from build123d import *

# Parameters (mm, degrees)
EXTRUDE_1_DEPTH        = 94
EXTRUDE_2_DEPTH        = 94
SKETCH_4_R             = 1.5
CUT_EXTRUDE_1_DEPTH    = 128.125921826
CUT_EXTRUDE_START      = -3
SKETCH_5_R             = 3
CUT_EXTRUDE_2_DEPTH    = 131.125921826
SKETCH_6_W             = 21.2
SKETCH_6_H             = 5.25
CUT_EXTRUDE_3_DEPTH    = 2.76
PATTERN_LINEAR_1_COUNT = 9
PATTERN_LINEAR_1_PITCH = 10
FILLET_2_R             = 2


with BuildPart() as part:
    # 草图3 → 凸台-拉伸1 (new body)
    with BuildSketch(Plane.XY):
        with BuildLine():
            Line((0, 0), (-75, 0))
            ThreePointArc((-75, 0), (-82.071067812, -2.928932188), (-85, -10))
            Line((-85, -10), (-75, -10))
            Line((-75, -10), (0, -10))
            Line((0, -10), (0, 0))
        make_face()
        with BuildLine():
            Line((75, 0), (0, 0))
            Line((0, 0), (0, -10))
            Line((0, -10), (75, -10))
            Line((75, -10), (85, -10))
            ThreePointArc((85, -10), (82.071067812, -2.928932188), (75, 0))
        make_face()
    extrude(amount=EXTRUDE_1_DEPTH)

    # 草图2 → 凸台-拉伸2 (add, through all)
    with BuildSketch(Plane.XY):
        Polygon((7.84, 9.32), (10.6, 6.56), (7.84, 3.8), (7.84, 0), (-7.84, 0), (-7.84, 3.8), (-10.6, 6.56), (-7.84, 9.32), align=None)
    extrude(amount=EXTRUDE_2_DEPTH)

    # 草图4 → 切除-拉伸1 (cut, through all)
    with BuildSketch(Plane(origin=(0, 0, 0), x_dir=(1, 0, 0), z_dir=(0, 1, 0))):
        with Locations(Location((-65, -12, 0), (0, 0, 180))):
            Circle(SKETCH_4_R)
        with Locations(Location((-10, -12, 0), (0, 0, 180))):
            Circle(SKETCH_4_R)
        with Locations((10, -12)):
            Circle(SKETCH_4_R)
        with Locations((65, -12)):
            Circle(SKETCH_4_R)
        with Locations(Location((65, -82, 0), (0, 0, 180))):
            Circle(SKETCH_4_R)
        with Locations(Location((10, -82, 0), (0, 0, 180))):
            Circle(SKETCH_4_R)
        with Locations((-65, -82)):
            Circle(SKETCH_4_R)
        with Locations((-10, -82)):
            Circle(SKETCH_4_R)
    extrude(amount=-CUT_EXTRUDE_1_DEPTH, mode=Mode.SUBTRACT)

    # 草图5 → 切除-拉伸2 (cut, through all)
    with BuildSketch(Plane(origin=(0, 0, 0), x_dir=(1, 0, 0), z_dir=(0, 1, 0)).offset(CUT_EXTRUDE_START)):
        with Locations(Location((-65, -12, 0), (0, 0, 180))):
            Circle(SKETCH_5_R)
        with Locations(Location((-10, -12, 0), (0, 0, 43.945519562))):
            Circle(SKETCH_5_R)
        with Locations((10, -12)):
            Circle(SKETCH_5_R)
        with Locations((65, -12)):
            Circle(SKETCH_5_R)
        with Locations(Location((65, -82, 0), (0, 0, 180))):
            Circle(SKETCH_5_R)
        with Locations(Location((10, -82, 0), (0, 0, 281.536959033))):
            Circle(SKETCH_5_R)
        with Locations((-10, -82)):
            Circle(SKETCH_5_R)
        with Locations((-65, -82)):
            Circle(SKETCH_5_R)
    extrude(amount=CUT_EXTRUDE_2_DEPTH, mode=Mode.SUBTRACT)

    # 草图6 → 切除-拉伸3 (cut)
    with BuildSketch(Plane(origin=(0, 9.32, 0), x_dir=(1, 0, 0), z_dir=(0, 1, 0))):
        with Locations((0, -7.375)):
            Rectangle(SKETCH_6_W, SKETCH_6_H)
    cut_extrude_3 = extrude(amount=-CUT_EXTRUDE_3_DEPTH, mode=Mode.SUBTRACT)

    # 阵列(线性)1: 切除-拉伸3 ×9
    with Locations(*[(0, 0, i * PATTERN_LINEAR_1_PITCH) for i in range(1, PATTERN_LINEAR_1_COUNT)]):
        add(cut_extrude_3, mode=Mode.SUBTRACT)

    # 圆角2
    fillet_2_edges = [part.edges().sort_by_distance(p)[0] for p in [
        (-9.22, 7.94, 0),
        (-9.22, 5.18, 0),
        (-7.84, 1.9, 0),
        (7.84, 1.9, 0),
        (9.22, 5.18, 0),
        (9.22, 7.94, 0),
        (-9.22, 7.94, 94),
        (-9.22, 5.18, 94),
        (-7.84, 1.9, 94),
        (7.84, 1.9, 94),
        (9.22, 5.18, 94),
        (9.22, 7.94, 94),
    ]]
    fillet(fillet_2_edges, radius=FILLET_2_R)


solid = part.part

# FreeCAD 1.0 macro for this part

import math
import FreeCAD as App
import Part
import Sketcher
from FreeCAD import Vector


def edges_at(feature, points):
    """Names of the edges that pass closest to the given points."""
    edges = feature.Shape.Edges
    near = lambda p: min(range(len(edges)), key=lambda i: edges[i].distToShape(Part.Vertex(*p))[0])
    return sorted({f"Edge{near(p) + 1}" for p in points})

doc = App.newDocument("Part")
body = doc.addObject("PartDesign::Body", "Body")

# Sketch on XY plane
sketch1 = body.newObject("Sketcher::SketchObject", "Sketch")
sketch1.AttachmentSupport = (doc.getObject("XY_Plane"), [""])
sketch1.MapMode = "FlatFace"
sketch1.addGeometry([
    Part.ArcOfCircle(Part.Circle(Vector(-75, -10, 0), Vector(0, 0, 1), 10), math.radians(90), math.radians(180)),
    Part.LineSegment(Vector(-85, -10, 0), Vector(85, -10, 0)),
    Part.ArcOfCircle(Part.Circle(Vector(75, -10, 0), Vector(0, 0, 1), 10), math.radians(0), math.radians(90)),
    Part.LineSegment(Vector(75, 0, 0), Vector(-75, 0, 0)),
], False)
sketch1.addConstraint([
    Sketcher.Constraint("Coincident", 0, 2, 1, 1),
    Sketcher.Constraint("Coincident", 1, 2, 2, 1),
    Sketcher.Constraint("Tangent", 2, 2, 3, 1),
    Sketcher.Constraint("Tangent", 3, 2, 0, 1),
    Sketcher.Constraint("Horizontal", 1),
    Sketcher.Constraint("Horizontal", 3),
    Sketcher.Constraint("Equal", 0, 2),
    Sketcher.Constraint("Symmetric", 2, 2, 3, 2, -1, 1),
    Sketcher.Constraint("Horizontal", 2, 3, 0, 2),
    Sketcher.Constraint("Radius", 0, 10.0),
    Sketcher.Constraint("DistanceX", 1, 1, 1, 2, 170.0),
])
pad1 = body.newObject("PartDesign::Pad", "Pad")
pad1.Profile = sketch1
pad1.Length = 94

# Sketch on XY plane
sketch2 = body.newObject("Sketcher::SketchObject", "Sketch001")
sketch2.AttachmentSupport = (doc.getObject("XY_Plane"), [""])
sketch2.MapMode = "FlatFace"
sketch2.addGeometry([
    Part.LineSegment(Vector(10.6, 6.6, 0), Vector(7.8, 9.3, 0)),  # 0
    Part.LineSegment(Vector(7.8, 9.3, 0), Vector(-7.8, 9.3, 0)),  # 1
    Part.LineSegment(Vector(-7.8, 9.3, 0), Vector(-10.6, 6.6, 0)),  # 2
    Part.LineSegment(Vector(-10.6, 6.6, 0), Vector(-7.8, 3.8, 0)),  # 3
    Part.LineSegment(Vector(-7.8, 3.8, 0), Vector(-7.8, 0, 0)),  # 4
    Part.LineSegment(Vector(-7.8, 0, 0), Vector(7.8, 0, 0)),  # 5
    Part.LineSegment(Vector(7.8, 0, 0), Vector(7.8, 3.8, 0)),  # 6
    Part.LineSegment(Vector(7.8, 3.8, 0), Vector(10.6, 6.6, 0)),  # 7
], False)
sketch2.addConstraint([
    Sketcher.Constraint("Coincident", 0, 2, 1, 1),
    Sketcher.Constraint("Coincident", 1, 2, 2, 1),
    Sketcher.Constraint("Coincident", 2, 2, 3, 1),
    Sketcher.Constraint("Coincident", 3, 2, 4, 1),
    Sketcher.Constraint("Coincident", 4, 2, 5, 1),
    Sketcher.Constraint("Coincident", 5, 2, 6, 1),
    Sketcher.Constraint("Coincident", 6, 2, 7, 1),
    Sketcher.Constraint("Coincident", 7, 2, 0, 1),
    Sketcher.Constraint("Horizontal", 1),
    Sketcher.Constraint("Vertical", 4),
    Sketcher.Constraint("Horizontal", 5),
    Sketcher.Constraint("Vertical", 6),
    Sketcher.Constraint("Symmetric", 4, 2, 5, 2, -1, 1),
    Sketcher.Constraint("Symmetric", 2, 2, 7, 2, -2),
    Sketcher.Constraint("Perpendicular", 0, 2),
    Sketcher.Constraint("Perpendicular", 2, 3),
    Sketcher.Constraint("Perpendicular", 3, 7),
    Sketcher.Constraint("Horizontal", 3, 2, 6, 2),
    Sketcher.Constraint("Vertical", 1, 2, 3, 2),
    Sketcher.Constraint("DistanceY", 4, 2, 4, 1, 3.8),
    Sketcher.Constraint("DistanceX", 1, 2, 1, 1, 15.68),
    Sketcher.Constraint("DistanceX", 2, 2, -1, 1, 10.6),
])
pad2 = body.newObject("PartDesign::Pad", "Pad001")
pad2.Profile = sketch2
pad2.Length = 94

# Sketch on XZ plane
sketch3 = body.newObject("Sketcher::SketchObject", "Sketch002")
sketch3.AttachmentSupport = (doc.getObject("XZ_Plane"), [""])
sketch3.MapMode = "FlatFace"
sketch3.addGeometry([
    Part.Circle(Vector(-65, 12, 0), Vector(0, 0, 1), 1.5),  # 0
    Part.Circle(Vector(-10, 12, 0), Vector(0, 0, 1), 1.5),  # 1
    Part.Circle(Vector(10, 12, 0), Vector(0, 0, 1), 1.5),  # 2
    Part.Circle(Vector(65, 12, 0), Vector(0, 0, 1), 1.5),  # 3
    Part.Circle(Vector(65, 82, 0), Vector(0, 0, 1), 1.5),  # 4
    Part.Circle(Vector(10, 82, 0), Vector(0, 0, 1), 1.5),  # 5
    Part.Circle(Vector(-65, 82, 0), Vector(0, 0, 1), 1.5),  # 6
    Part.Circle(Vector(-10, 82, 0), Vector(0, 0, 1), 1.5),  # 7
], False)
sketch3.addConstraint([
    Sketcher.Constraint("Equal", 0, 1),
    Sketcher.Constraint("Equal", 1, 2),
    Sketcher.Constraint("Equal", 2, 3),
    Sketcher.Constraint("Equal", 3, 4),
    Sketcher.Constraint("Equal", 4, 5),
    Sketcher.Constraint("Equal", 5, 6),
    Sketcher.Constraint("Equal", 6, 7),
    Sketcher.Constraint("Symmetric", 1, 3, 2, 3, -2),
    Sketcher.Constraint("Symmetric", 0, 3, 3, 3, -2),
    Sketcher.Constraint("Symmetric", 4, 3, 6, 3, -2),
    Sketcher.Constraint("Symmetric", 5, 3, 7, 3, -2),
    Sketcher.Constraint("Horizontal", 0, 3, 1, 3),
    Sketcher.Constraint("Horizontal", 4, 3, 5, 3),
    Sketcher.Constraint("Vertical", 3, 3, 4, 3),
    Sketcher.Constraint("Vertical", 2, 3, 5, 3),
    Sketcher.Constraint("Diameter", 0, 3.0),
    Sketcher.Constraint("DistanceX", 0, 3, -1, 1, 65.0),
    Sketcher.Constraint("DistanceY", -1, 1, 0, 3, 12.0),
    Sketcher.Constraint("DistanceX", 1, 3, -1, 1, 10.0),
    Sketcher.Constraint("DistanceY", -1, 1, 4, 3, 82.0),
])
pocket1 = body.newObject("PartDesign::Pocket", "Pocket")
pocket1.Profile = sketch3
pocket1.Type = "ThroughAll"
pocket1.Reversed = True

# Sketch on XZ plane
sketch4 = body.newObject("Sketcher::SketchObject", "Sketch003")
sketch4.AttachmentSupport = (doc.getObject("XZ_Plane"), [""])
sketch4.MapMode = "FlatFace"
sketch4.AttachmentOffset = App.Placement(Vector(0, 0, 3), App.Rotation())
sketch4.addGeometry([
    Part.Circle(Vector(-65, 12, 0), Vector(0, 0, 1), 3),  # 0
    Part.Circle(Vector(-10, 12, 0), Vector(0, 0, 1), 3),  # 1
    Part.Circle(Vector(10, 12, 0), Vector(0, 0, 1), 3),  # 2
    Part.Circle(Vector(65, 12, 0), Vector(0, 0, 1), 3),  # 3
    Part.Circle(Vector(65, 82, 0), Vector(0, 0, 1), 3),  # 4
    Part.Circle(Vector(10, 82, 0), Vector(0, 0, 1), 3),  # 5
    Part.Circle(Vector(-10, 82, 0), Vector(0, 0, 1), 3),  # 6
    Part.Circle(Vector(-65, 82, 0), Vector(0, 0, 1), 3),  # 7
], False)
sketch4.addConstraint([
    Sketcher.Constraint("Equal", 0, 1),
    Sketcher.Constraint("Equal", 1, 2),
    Sketcher.Constraint("Equal", 2, 3),
    Sketcher.Constraint("Equal", 3, 4),
    Sketcher.Constraint("Equal", 4, 5),
    Sketcher.Constraint("Equal", 5, 6),
    Sketcher.Constraint("Equal", 6, 7),
    Sketcher.Constraint("Symmetric", 1, 3, 2, 3, -2),
    Sketcher.Constraint("Symmetric", 0, 3, 3, 3, -2),
    Sketcher.Constraint("Symmetric", 5, 3, 6, 3, -2),
    Sketcher.Constraint("Symmetric", 4, 3, 7, 3, -2),
    Sketcher.Constraint("Horizontal", 0, 3, 1, 3),
    Sketcher.Constraint("Horizontal", 4, 3, 5, 3),
    Sketcher.Constraint("Vertical", 3, 3, 4, 3),
    Sketcher.Constraint("Vertical", 2, 3, 5, 3),
    Sketcher.Constraint("Diameter", 0, 6.0),
    Sketcher.Constraint("DistanceX", 0, 3, -1, 1, 65.0),
    Sketcher.Constraint("DistanceY", -1, 1, 0, 3, 12.0),
    Sketcher.Constraint("DistanceX", 1, 3, -1, 1, 10.0),
    Sketcher.Constraint("DistanceY", -1, 1, 4, 3, 82.0),
])
pocket2 = body.newObject("PartDesign::Pocket", "Pocket001")
pocket2.Profile = sketch4
pocket2.Type = "ThroughAll"

# Sketch on XZ plane
sketch5 = body.newObject("Sketcher::SketchObject", "Sketch004")
sketch5.AttachmentSupport = (doc.getObject("XZ_Plane"), [""])
sketch5.MapMode = "FlatFace"
sketch5.AttachmentOffset = App.Placement(Vector(0, 0, -9.32), App.Rotation())
sketch5.addGeometry([
    Part.LineSegment(Vector(-11, 5, 0), Vector(-11, 10, 0)),
    Part.LineSegment(Vector(-11, 10, 0), Vector(11, 10, 0)),
    Part.LineSegment(Vector(11, 10, 0), Vector(11, 5, 0)),
    Part.LineSegment(Vector(11, 5, 0), Vector(-11, 5, 0)),
], False)
sketch5.addConstraint([
    Sketcher.Constraint("Coincident", 0, 2, 1, 1),
    Sketcher.Constraint("Coincident", 1, 2, 2, 1),
    Sketcher.Constraint("Coincident", 2, 2, 3, 1),
    Sketcher.Constraint("Coincident", 3, 2, 0, 1),
    Sketcher.Constraint("Vertical", 0),
    Sketcher.Constraint("Horizontal", 1),
    Sketcher.Constraint("Vertical", 2),
    Sketcher.Constraint("Horizontal", 3),
    Sketcher.Constraint("DistanceX", 1, 1, 1, 2, 21.2),
    Sketcher.Constraint("DistanceY", -1, 1, 0, 2, 10.0),
    Sketcher.Constraint("DistanceY", 0, 1, 0, 2, 5.25),
    Sketcher.Constraint("DistanceX", 0, 2, -1, 1, 10.6),
])
pocket3 = body.newObject("PartDesign::Pocket", "Pocket002")
pocket3.Profile = sketch5
pocket3.Length = 2.76
pocket3.Reversed = True
doc.recompute()

linearpattern = body.newObject("PartDesign::LinearPattern", "LinearPattern")
linearpattern.Originals = [pocket3]
linearpattern.Direction = (doc.getObject("Z_Axis"), [""])
linearpattern.Mode = "offset"
linearpattern.Offset = 10
linearpattern.Occurrences = 9
body.Tip = linearpattern
doc.recompute()

fillet = body.newObject("PartDesign::Fillet", "Fillet")
fillet.Base = (linearpattern, edges_at(linearpattern, [
    (-9.22, 7.94, 0),
    (-9.22, 5.18, 0),
    (-7.84, 1.9, 0),
    (7.84, 1.9, 0),
    (9.22, 5.18, 0),
    (9.22, 7.94, 0),
    (-9.22, 7.94, 94),
    (-9.22, 5.18, 94),
    (-7.84, 1.9, 94),
    (7.84, 1.9, 94),
    (9.22, 5.18, 94),
    (9.22, 7.94, 94),
]))
fillet.Radius = 2

doc.recompute()
